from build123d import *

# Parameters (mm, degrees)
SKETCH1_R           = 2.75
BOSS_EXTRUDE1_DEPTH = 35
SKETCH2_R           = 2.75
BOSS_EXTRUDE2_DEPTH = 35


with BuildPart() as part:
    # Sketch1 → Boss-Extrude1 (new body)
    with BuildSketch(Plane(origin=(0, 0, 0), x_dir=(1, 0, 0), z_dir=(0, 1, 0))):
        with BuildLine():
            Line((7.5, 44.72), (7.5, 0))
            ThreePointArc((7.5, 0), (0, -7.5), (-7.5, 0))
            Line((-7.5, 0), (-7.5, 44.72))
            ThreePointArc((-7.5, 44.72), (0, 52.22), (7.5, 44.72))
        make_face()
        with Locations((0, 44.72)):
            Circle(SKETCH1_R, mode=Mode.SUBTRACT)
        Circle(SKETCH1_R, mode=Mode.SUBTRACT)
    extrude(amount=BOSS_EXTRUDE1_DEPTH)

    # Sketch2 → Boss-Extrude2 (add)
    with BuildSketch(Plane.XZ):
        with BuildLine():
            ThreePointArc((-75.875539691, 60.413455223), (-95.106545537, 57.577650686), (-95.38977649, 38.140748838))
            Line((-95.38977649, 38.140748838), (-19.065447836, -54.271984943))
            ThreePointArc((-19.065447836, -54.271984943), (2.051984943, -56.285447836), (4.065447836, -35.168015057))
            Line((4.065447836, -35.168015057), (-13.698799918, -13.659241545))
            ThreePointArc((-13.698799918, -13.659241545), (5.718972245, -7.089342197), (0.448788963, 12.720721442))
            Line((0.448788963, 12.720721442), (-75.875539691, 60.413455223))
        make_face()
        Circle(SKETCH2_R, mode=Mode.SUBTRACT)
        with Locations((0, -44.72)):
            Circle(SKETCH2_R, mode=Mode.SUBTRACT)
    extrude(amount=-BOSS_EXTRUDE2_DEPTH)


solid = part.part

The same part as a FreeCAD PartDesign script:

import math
import FreeCAD as App
import Part
import Sketcher

V = App.Vector
Q = App.Units.Quantity

doc = App.newDocument("Part")
body = doc.addObject("PartDesign::Body", "Body")

# Sketch on XZ plane
sketch1 = doc.addObject("Sketcher::SketchObject", "Sketch")
body.addObject(sketch1)
sketch1.AttachmentSupport = (doc.XZ_Plane, [""])
sketch1.MapMode = "FlatFace"
sketch1.addGeometry([
    Part.LineSegment(V(7.5, 0, 0), V(7.5, -44.72, 0)),  # 0
    Part.ArcOfCircle(Part.Circle(V(0, -44.72, 0), V(0, 0, 1), 7.5), math.radians(180), math.radians(360)),  # 1
    Part.LineSegment(V(-7.5, -44.72, 0), V(-7.5, 0, 0)),  # 2
    Part.ArcOfCircle(Part.Circle(V(0, 0, 0), V(0, 0, 1), 7.5), math.radians(0), math.radians(180)),  # 3
    Part.Circle(V(0, 0, 0), V(0, 0, 1), 2.75),  # 4
    Part.Circle(V(0, -44.72, 0), V(0, 0, 1), 2.75),  # 5
], False)
sketch1.addConstraint([
    Sketcher.Constraint("Tangent", 0, 2, 1, 2),
    Sketcher.Constraint("Tangent", 1, 1, 2, 1),
    Sketcher.Constraint("Tangent", 2, 2, 3, 2),
    Sketcher.Constraint("Tangent", 3, 1, 0, 1),
    Sketcher.Constraint("Vertical", 0),
    Sketcher.Constraint("Vertical", 2),
    Sketcher.Constraint("Coincident", 3, 3, -1, 1),
    Sketcher.Constraint("Coincident", 4, 3, -1, 1),
    Sketcher.Constraint("Coincident", 5, 3, 1, 3),
    Sketcher.Constraint("Equal", 4, 5),
    Sketcher.Constraint("Diameter", 4, 5.5),
    Sketcher.Constraint("Radius", 1, 7.5),
    Sketcher.Constraint("DistanceY", 0, 2, 0, 1, 44.72),
])
pad1 = doc.addObject("PartDesign::Pad", "Pad")
body.addObject(pad1)
pad1.Profile = sketch1
pad1.Length = 35
pad1.Reversed = True

# Sketch on XZ plane
sketch2 = doc.addObject("Sketcher::SketchObject", "Sketch001")
body.addObject(sketch2)
sketch2.AttachmentSupport = (doc.XZ_Plane, [""])
sketch2.MapMode = "FlatFace"
sketch2.addGeometry([
    Part.ArcOfCircle(Part.Circle(V(-83.824329, 47.692734, 0), V(0, 0, 1), 15), math.radians(58), math.radians(219.553541)),  # 0
    Part.LineSegment(V(-95.389776, 38.140749, 0), V(-19.065448, -54.271985, 0)),  # 1
    Part.ArcOfCircle(Part.Circle(V(-7.5, -44.72, 0), V(0, 0, 1), 15), math.radians(-140.446459), math.radians(39.553541)),  # 2
    Part.LineSegment(V(4.065448, -35.168015, 0), V(-13.6988, -13.659242, 0)),  # 3
    Part.ArcOfCircle(Part.Circle(V(-7.5, 0, 0), V(0, 0, 1), 15), math.radians(-114.409368), math.radians(58)),  # 4
    Part.LineSegment(V(0.448789, 12.720721, 0), V(-75.87554, 60.413455, 0)),  # 5
    Part.Circle(V(0, -44.72, 0), V(0, 0, 1), 2.75),  # 6
    Part.Circle(V(0, 0, 0), V(0, 0, 1), 2.75),  # 7
], False)
sketch2.addConstraint([
    Sketcher.Constraint("Tangent", 0, 2, 1, 1),
    Sketcher.Constraint("Tangent", 1, 2, 2, 1),
    Sketcher.Constraint("Tangent", 2, 2, 3, 1),
    Sketcher.Constraint("Coincident", 3, 2, 4, 1),
    Sketcher.Constraint("Tangent", 4, 2, 5, 1),
    Sketcher.Constraint("Tangent", 5, 2, 0, 1),
    Sketcher.Constraint("Coincident", 7, 3, -1, 1),
    Sketcher.Constraint("Equal", 0, 2),
    Sketcher.Constraint("Equal", 2, 4),
    Sketcher.Constraint("Equal", 6, 7),
    Sketcher.Constraint("PointOnObject", 4, 3, -1),
    Sketcher.Constraint("PointOnObject", 6, 3, -2),
    Sketcher.Constraint("Parallel", 1, 3),
    Sketcher.Constraint("Horizontal", 2, 3, 6, 3),
    Sketcher.Constraint("Vertical", 2, 3, 4, 3),
    Sketcher.Constraint("Radius", 0, 15.0),
    Sketcher.Constraint("Diameter", 6, 5.5),
    Sketcher.Constraint("Angle", 5, Q("148 deg")),
    Sketcher.Constraint("Distance", 5, 90.0),
    Sketcher.Constraint("DistanceX", 2, 3, -1, 1, 7.5),
    Sketcher.Constraint("DistanceY", 2, 3, -1, 1, 44.72),
])
pad2 = doc.addObject("PartDesign::Pad", "Pad001")
body.addObject(pad2)
pad2.Profile = sketch2
pad2.Length = 35
pad2.Reversed = True

doc.recompute()
